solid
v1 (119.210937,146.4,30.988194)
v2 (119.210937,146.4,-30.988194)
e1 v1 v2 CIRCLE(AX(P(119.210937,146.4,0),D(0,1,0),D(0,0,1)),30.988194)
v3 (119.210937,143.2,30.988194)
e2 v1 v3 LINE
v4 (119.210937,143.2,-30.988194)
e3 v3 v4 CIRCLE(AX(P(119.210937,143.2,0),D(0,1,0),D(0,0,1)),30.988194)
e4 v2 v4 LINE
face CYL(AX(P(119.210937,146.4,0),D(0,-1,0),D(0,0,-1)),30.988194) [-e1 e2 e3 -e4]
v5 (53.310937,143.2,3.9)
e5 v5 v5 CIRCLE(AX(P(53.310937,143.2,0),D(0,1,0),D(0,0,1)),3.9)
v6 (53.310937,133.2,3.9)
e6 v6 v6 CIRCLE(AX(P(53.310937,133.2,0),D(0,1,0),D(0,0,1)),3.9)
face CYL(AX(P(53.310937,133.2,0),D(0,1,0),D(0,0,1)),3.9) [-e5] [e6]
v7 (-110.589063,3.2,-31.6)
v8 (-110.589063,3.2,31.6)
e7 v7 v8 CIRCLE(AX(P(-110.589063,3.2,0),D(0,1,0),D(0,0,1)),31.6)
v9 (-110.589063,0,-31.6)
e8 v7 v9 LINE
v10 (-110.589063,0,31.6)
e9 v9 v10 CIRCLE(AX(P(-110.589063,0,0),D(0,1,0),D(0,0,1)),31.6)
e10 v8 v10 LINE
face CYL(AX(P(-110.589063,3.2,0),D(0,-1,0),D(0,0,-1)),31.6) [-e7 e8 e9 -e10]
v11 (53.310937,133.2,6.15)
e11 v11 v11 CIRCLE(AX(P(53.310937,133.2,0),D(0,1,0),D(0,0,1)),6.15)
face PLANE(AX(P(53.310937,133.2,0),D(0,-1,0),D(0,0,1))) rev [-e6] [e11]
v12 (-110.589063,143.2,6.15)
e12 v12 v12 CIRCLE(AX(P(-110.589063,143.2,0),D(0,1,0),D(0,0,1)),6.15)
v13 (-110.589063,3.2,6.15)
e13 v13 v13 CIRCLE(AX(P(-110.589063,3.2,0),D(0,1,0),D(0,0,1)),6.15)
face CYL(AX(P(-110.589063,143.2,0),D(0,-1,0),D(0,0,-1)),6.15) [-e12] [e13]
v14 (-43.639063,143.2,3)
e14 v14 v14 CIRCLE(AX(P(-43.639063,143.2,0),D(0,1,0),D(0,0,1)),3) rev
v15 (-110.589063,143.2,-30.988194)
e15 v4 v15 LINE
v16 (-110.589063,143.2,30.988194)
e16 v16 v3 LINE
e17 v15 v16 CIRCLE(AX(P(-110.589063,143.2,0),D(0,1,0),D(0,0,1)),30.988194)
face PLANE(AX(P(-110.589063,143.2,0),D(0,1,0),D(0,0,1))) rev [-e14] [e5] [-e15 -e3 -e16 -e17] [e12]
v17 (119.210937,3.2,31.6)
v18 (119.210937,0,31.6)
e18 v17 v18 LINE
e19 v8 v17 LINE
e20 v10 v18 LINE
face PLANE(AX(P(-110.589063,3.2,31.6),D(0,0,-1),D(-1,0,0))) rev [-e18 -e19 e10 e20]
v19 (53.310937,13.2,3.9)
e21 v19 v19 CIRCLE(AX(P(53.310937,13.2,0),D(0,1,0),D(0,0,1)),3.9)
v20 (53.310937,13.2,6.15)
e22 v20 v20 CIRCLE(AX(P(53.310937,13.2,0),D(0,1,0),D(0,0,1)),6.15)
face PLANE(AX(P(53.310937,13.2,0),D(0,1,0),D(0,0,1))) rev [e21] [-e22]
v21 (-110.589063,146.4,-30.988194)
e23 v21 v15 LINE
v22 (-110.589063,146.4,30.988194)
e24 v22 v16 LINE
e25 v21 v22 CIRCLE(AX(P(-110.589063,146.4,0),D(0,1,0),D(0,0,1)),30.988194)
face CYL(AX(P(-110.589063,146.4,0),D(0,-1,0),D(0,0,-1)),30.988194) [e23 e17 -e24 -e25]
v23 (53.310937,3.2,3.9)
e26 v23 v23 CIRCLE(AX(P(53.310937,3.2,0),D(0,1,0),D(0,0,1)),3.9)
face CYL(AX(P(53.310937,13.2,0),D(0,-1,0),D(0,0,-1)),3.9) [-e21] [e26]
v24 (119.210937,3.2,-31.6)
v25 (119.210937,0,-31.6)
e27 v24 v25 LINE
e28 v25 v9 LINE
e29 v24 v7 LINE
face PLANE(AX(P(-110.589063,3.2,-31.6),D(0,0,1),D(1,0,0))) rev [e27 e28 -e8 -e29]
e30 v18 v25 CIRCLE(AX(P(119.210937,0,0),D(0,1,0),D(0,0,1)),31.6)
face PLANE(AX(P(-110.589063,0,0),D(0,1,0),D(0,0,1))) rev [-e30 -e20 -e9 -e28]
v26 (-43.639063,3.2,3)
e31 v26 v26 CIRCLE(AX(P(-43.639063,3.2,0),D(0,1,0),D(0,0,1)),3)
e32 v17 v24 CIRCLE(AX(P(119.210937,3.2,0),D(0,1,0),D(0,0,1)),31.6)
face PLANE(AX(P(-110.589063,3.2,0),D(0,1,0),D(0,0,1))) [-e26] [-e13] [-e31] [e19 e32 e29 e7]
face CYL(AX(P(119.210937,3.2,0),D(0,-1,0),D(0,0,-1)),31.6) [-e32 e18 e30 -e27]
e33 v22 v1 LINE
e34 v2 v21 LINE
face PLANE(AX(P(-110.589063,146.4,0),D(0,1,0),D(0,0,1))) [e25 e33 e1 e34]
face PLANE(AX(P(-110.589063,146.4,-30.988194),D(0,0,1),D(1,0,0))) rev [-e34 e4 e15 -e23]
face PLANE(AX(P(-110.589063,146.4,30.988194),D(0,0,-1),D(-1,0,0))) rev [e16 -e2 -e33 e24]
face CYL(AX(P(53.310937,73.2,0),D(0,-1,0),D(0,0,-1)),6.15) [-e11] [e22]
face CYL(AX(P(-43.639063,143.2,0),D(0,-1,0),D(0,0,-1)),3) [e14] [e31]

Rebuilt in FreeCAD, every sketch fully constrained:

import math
import FreeCAD as App
import Part
import Sketcher
Q = App.Units.Quantity

doc = App.newDocument("Part")
params = doc.addObject("Spreadsheet::Sheet", "Params")
for row, (alias, value) in enumerate([
    ("sketch1_radius", "31.6 mm"),
    ("sketch1_width", "229.8 mm"),
    ("pad1_length", "3.2 mm"),
    ("sketch2_diameter", "12.3 mm"),
    ("pad2_length", "140 mm"),
    ("sketch3_width", "229.8 mm"),
    ("pad3_length", "3.2 mm"),
    ("sketch4_diameter", "6 mm"),
    ("pad4_length", "140 mm"),
    ("sketch5_diameter", "7.8 mm"),
    ("pad5_length", "10 mm"),
    ("sketch6_diameter", "12.3 mm"),
    ("pad6_length", "60 mm"),
], start=1):
    params.set(f"A{row}", alias)
    params.set(f"B{row}", "=" + value)
    params.setAlias(f"B{row}", alias)

body = doc.addObject("PartDesign::Body", "Body")

# Sketch on XZ plane
sketch1 = body.newObject("Sketcher::SketchObject", "Sketch")
sketch1.AttachmentSupport = (doc.getObject("XZ_Plane"), [""])
sketch1.MapMode = "FlatFace"
sketch1.addGeometry(Part.LineSegment(App.Vector(119, -32, 0), App.Vector(-111, -32, 0)), False)
sketch1.addGeometry(Part.ArcOfCircle(Part.Circle(App.Vector(-111, 0, 0), App.Vector(0, 0, 1), 32), math.radians(90), math.radians(270)), False)
sketch1.addGeometry(Part.LineSegment(App.Vector(-111, 32, 0), App.Vector(119, 32, 0)), False)
sketch1.addGeometry(Part.ArcOfCircle(Part.Circle(App.Vector(119, 0, 0), App.Vector(0, 0, 1), 32), math.radians(-90), math.radians(90)), False)
sketch1.addConstraint(Sketcher.Constraint("Tangent", 0, 2, 1, 2))
sketch1.addConstraint(Sketcher.Constraint("Tangent", 1, 1, 2, 1))
sketch1.addConstraint(Sketcher.Constraint("Tangent", 2, 2, 3, 2))
sketch1.addConstraint(Sketcher.Constraint("Tangent", 3, 1, 0, 1))
sketch1.addConstraint(Sketcher.Constraint("Horizontal", 0))
sketch1.addConstraint(Sketcher.Constraint("Horizontal", 2))
sketch1.addConstraint(Sketcher.Constraint("PointOnObject", 1, 3, -1))
sketch1.addConstraint(Sketcher.Constraint("Radius", 1, Q("31.6 mm")))
sketch1.addConstraint(Sketcher.Constraint("DistanceX", 0, 2, 0, 1, Q("229.8 mm")))
sketch1.addConstraint(Sketcher.Constraint("DistanceX", 1, 3, -1, 1, Q("110.589063 mm")))
sketch1.setExpression("Constraints[7]", "Params.sketch1_radius")
sketch1.setExpression("Constraints[8]", "Params.sketch1_width")
pad1 = body.newObject("PartDesign::Pad", "Pad")
pad1.Profile = sketch1
pad1.setExpression("Length", "Params.pad1_length")
pad1.Reversed = True

# Sketch on XZ plane
sketch2 = body.newObject("Sketcher::SketchObject", "Sketch001")
sketch2.AttachmentSupport = (doc.getObject("XZ_Plane"), [""])
sketch2.MapMode = "FlatFace"
sketch2.AttachmentOffset = App.Placement(App.Vector(0, 0, -3.2), App.Rotation())
sketch2.addGeometry(Part.Circle(App.Vector(-111, 0, 0), App.Vector(0, 0, 1), 6), False)
sketch2.addConstraint(Sketcher.Constraint("PointOnObject", 0, 3, -1))
sketch2.addConstraint(Sketcher.Constraint("Diameter", 0, Q("12.3 mm")))
sketch2.addConstraint(Sketcher.Constraint("DistanceX", 0, 3, -1, 1, Q("110.589063 mm")))
sketch2.setExpression("Constraints[1]", "Params.sketch2_diameter")
pad2 = body.newObject("PartDesign::Pad", "Pad001")
pad2.Profile = sketch2
pad2.setExpression("Length", "Params.pad2_length")
pad2.Reversed = True

# Sketch on XZ plane
sketch3 = body.newObject("Sketcher::SketchObject", "Sketch002")
sketch3.AttachmentSupport = (doc.getObject("XZ_Plane"), [""])
sketch3.MapMode = "FlatFace"
sketch3.AttachmentOffset = App.Placement(App.Vector(0, 0, -143.2), App.Rotation())
sketch3.addGeometry(Part.LineSegment(App.Vector(119, -31, 0), App.Vector(-111, -31, 0)), False)
sketch3.addGeometry(Part.ArcOfCircle(Part.Circle(App.Vector(-111, 0, 0), App.Vector(0, 0, 1), 31), math.radians(90), math.radians(270)), False)
sketch3.addGeometry(Part.LineSegment(App.Vector(-111, 31, 0), App.Vector(119, 31, 0)), False)
sketch3.addGeometry(Part.ArcOfCircle(Part.Circle(App.Vector(119, 0, 0), App.Vector(0, 0, 1), 31), math.radians(-90), math.radians(90)), False)
sketch3.addConstraint(Sketcher.Constraint("Tangent", 0, 2, 1, 2))
sketch3.addConstraint(Sketcher.Constraint("Tangent", 1, 1, 2, 1))
sketch3.addConstraint(Sketcher.Constraint("Tangent", 2, 2, 3, 2))
sketch3.addConstraint(Sketcher.Constraint("Tangent", 3, 1, 0, 1))
sketch3.addConstraint(Sketcher.Constraint("Horizontal", 0))
sketch3.addConstraint(Sketcher.Constraint("Horizontal", 2))
sketch3.addConstraint(Sketcher.Constraint("PointOnObject", 1, 3, -1))
sketch3.addConstraint(Sketcher.Constraint("DistanceX", 0, 2, 0, 1, Q("229.8 mm")))
sketch3.addConstraint(Sketcher.Constraint("Radius", 1, Q("30.988194 mm")))
sketch3.addConstraint(Sketcher.Constraint("DistanceX", 1, 3, -1, 1, Q("110.589063 mm")))
sketch3.setExpression("Constraints[7]", "Params.sketch3_width")
pad3 = body.newObject("PartDesign::Pad", "Pad002")
pad3.Profile = sketch3
pad3.setExpression("Length", "Params.pad3_length")
pad3.Reversed = True

# Sketch on XZ plane
sketch4 = body.newObject("Sketcher::SketchObject", "Sketch003")
sketch4.AttachmentSupport = (doc.getObject("XZ_Plane"), [""])
sketch4.MapMode = "FlatFace"
sketch4.AttachmentOffset = App.Placement(App.Vector(0, 0, -3.2), App.Rotation())
sketch4.addGeometry(Part.Circle(App.Vector(-43.6, 0, 0), App.Vector(0, 0, 1), 3), False)
sketch4.addConstraint(Sketcher.Constraint("PointOnObject", 0, 3, -1))
sketch4.addConstraint(Sketcher.Constraint("Diameter", 0, Q("6 mm")))
sketch4.addConstraint(Sketcher.Constraint("DistanceX", 0, 3, -1, 1, Q("43.639063 mm")))
sketch4.setExpression("Constraints[1]", "Params.sketch4_diameter")
pad4 = body.newObject("PartDesign::Pad", "Pad003")
pad4.Profile = sketch4
pad4.setExpression("Length", "Params.pad4_length")
pad4.Reversed = True

# Sketch on XZ plane
sketch5 = body.newObject("Sketcher::SketchObject", "Sketch004")
sketch5.AttachmentSupport = (doc.getObject("XZ_Plane"), [""])
sketch5.MapMode = "FlatFace"
sketch5.AttachmentOffset = App.Placement(App.Vector(0, 0, -3.2), App.Rotation())
sketch5.addGeometry(Part.Circle(App.Vector(53.3, 0, 0), App.Vector(0, 0, 1), 3.9), False)
sketch5.addConstraint(Sketcher.Constraint("PointOnObject", 0, 3, -1))
sketch5.addConstraint(Sketcher.Constraint("Diameter", 0, Q("7.8 mm")))
sketch5.addConstraint(Sketcher.Constraint("DistanceX", -1, 1, 0, 3, Q("53.310937 mm")))
sketch5.setExpression("Constraints[1]", "Params.sketch5_diameter")
pad5 = body.newObject("PartDesign::Pad", "Pad004")
pad5.Profile = sketch5
pad5.setExpression("Length", "Params.pad5_length")
pad5.Reversed = True

# Sketch on XZ plane
sketch6 = body.newObject("Sketcher::SketchObject", "Sketch005")
sketch6.AttachmentSupport = (doc.getObject("XZ_Plane"), [""])
sketch6.MapMode = "FlatFace"
sketch6.AttachmentOffset = App.Placement(App.Vector(0, 0, -13.2), App.Rotation())
sketch6.addGeometry(Part.Circle(App.Vector(53, 0, 0), App.Vector(0, 0, 1), 6), False)
sketch6.addConstraint(Sketcher.Constraint("PointOnObject", 0, 3, -1))
sketch6.addConstraint(Sketcher.Constraint("Diameter", 0, Q("12.3 mm")))
sketch6.addConstraint(Sketcher.Constraint("DistanceX", -1, 1, 0, 3, Q("53.310937 mm")))
sketch6.setExpression("Constraints[1]", "Params.sketch6_diameter")
pad6 = body.newObject("PartDesign::Pad", "Pad005")
pad6.Profile = sketch6
pad6.setExpression("Length", "Params.pad6_length")
pad6.Reversed = True
doc.recompute()

datumplane = body.newObject("PartDesign::Plane", "DatumPlane")
datumplane.AttachmentSupport = (doc.getObject("XZ_Plane"), [""])
datumplane.MapMode = "FlatFace"
datumplane.AttachmentOffset = App.Placement(App.Vector(0, 0, -73.2), App.Rotation())
mirrored = body.newObject("PartDesign::Mirrored", "Mirrored")
mirrored.Originals = [pad5, pad6]
mirrored.MirrorPlane = (datumplane, [""])
body.Tip = mirrored

doc.recompute()
